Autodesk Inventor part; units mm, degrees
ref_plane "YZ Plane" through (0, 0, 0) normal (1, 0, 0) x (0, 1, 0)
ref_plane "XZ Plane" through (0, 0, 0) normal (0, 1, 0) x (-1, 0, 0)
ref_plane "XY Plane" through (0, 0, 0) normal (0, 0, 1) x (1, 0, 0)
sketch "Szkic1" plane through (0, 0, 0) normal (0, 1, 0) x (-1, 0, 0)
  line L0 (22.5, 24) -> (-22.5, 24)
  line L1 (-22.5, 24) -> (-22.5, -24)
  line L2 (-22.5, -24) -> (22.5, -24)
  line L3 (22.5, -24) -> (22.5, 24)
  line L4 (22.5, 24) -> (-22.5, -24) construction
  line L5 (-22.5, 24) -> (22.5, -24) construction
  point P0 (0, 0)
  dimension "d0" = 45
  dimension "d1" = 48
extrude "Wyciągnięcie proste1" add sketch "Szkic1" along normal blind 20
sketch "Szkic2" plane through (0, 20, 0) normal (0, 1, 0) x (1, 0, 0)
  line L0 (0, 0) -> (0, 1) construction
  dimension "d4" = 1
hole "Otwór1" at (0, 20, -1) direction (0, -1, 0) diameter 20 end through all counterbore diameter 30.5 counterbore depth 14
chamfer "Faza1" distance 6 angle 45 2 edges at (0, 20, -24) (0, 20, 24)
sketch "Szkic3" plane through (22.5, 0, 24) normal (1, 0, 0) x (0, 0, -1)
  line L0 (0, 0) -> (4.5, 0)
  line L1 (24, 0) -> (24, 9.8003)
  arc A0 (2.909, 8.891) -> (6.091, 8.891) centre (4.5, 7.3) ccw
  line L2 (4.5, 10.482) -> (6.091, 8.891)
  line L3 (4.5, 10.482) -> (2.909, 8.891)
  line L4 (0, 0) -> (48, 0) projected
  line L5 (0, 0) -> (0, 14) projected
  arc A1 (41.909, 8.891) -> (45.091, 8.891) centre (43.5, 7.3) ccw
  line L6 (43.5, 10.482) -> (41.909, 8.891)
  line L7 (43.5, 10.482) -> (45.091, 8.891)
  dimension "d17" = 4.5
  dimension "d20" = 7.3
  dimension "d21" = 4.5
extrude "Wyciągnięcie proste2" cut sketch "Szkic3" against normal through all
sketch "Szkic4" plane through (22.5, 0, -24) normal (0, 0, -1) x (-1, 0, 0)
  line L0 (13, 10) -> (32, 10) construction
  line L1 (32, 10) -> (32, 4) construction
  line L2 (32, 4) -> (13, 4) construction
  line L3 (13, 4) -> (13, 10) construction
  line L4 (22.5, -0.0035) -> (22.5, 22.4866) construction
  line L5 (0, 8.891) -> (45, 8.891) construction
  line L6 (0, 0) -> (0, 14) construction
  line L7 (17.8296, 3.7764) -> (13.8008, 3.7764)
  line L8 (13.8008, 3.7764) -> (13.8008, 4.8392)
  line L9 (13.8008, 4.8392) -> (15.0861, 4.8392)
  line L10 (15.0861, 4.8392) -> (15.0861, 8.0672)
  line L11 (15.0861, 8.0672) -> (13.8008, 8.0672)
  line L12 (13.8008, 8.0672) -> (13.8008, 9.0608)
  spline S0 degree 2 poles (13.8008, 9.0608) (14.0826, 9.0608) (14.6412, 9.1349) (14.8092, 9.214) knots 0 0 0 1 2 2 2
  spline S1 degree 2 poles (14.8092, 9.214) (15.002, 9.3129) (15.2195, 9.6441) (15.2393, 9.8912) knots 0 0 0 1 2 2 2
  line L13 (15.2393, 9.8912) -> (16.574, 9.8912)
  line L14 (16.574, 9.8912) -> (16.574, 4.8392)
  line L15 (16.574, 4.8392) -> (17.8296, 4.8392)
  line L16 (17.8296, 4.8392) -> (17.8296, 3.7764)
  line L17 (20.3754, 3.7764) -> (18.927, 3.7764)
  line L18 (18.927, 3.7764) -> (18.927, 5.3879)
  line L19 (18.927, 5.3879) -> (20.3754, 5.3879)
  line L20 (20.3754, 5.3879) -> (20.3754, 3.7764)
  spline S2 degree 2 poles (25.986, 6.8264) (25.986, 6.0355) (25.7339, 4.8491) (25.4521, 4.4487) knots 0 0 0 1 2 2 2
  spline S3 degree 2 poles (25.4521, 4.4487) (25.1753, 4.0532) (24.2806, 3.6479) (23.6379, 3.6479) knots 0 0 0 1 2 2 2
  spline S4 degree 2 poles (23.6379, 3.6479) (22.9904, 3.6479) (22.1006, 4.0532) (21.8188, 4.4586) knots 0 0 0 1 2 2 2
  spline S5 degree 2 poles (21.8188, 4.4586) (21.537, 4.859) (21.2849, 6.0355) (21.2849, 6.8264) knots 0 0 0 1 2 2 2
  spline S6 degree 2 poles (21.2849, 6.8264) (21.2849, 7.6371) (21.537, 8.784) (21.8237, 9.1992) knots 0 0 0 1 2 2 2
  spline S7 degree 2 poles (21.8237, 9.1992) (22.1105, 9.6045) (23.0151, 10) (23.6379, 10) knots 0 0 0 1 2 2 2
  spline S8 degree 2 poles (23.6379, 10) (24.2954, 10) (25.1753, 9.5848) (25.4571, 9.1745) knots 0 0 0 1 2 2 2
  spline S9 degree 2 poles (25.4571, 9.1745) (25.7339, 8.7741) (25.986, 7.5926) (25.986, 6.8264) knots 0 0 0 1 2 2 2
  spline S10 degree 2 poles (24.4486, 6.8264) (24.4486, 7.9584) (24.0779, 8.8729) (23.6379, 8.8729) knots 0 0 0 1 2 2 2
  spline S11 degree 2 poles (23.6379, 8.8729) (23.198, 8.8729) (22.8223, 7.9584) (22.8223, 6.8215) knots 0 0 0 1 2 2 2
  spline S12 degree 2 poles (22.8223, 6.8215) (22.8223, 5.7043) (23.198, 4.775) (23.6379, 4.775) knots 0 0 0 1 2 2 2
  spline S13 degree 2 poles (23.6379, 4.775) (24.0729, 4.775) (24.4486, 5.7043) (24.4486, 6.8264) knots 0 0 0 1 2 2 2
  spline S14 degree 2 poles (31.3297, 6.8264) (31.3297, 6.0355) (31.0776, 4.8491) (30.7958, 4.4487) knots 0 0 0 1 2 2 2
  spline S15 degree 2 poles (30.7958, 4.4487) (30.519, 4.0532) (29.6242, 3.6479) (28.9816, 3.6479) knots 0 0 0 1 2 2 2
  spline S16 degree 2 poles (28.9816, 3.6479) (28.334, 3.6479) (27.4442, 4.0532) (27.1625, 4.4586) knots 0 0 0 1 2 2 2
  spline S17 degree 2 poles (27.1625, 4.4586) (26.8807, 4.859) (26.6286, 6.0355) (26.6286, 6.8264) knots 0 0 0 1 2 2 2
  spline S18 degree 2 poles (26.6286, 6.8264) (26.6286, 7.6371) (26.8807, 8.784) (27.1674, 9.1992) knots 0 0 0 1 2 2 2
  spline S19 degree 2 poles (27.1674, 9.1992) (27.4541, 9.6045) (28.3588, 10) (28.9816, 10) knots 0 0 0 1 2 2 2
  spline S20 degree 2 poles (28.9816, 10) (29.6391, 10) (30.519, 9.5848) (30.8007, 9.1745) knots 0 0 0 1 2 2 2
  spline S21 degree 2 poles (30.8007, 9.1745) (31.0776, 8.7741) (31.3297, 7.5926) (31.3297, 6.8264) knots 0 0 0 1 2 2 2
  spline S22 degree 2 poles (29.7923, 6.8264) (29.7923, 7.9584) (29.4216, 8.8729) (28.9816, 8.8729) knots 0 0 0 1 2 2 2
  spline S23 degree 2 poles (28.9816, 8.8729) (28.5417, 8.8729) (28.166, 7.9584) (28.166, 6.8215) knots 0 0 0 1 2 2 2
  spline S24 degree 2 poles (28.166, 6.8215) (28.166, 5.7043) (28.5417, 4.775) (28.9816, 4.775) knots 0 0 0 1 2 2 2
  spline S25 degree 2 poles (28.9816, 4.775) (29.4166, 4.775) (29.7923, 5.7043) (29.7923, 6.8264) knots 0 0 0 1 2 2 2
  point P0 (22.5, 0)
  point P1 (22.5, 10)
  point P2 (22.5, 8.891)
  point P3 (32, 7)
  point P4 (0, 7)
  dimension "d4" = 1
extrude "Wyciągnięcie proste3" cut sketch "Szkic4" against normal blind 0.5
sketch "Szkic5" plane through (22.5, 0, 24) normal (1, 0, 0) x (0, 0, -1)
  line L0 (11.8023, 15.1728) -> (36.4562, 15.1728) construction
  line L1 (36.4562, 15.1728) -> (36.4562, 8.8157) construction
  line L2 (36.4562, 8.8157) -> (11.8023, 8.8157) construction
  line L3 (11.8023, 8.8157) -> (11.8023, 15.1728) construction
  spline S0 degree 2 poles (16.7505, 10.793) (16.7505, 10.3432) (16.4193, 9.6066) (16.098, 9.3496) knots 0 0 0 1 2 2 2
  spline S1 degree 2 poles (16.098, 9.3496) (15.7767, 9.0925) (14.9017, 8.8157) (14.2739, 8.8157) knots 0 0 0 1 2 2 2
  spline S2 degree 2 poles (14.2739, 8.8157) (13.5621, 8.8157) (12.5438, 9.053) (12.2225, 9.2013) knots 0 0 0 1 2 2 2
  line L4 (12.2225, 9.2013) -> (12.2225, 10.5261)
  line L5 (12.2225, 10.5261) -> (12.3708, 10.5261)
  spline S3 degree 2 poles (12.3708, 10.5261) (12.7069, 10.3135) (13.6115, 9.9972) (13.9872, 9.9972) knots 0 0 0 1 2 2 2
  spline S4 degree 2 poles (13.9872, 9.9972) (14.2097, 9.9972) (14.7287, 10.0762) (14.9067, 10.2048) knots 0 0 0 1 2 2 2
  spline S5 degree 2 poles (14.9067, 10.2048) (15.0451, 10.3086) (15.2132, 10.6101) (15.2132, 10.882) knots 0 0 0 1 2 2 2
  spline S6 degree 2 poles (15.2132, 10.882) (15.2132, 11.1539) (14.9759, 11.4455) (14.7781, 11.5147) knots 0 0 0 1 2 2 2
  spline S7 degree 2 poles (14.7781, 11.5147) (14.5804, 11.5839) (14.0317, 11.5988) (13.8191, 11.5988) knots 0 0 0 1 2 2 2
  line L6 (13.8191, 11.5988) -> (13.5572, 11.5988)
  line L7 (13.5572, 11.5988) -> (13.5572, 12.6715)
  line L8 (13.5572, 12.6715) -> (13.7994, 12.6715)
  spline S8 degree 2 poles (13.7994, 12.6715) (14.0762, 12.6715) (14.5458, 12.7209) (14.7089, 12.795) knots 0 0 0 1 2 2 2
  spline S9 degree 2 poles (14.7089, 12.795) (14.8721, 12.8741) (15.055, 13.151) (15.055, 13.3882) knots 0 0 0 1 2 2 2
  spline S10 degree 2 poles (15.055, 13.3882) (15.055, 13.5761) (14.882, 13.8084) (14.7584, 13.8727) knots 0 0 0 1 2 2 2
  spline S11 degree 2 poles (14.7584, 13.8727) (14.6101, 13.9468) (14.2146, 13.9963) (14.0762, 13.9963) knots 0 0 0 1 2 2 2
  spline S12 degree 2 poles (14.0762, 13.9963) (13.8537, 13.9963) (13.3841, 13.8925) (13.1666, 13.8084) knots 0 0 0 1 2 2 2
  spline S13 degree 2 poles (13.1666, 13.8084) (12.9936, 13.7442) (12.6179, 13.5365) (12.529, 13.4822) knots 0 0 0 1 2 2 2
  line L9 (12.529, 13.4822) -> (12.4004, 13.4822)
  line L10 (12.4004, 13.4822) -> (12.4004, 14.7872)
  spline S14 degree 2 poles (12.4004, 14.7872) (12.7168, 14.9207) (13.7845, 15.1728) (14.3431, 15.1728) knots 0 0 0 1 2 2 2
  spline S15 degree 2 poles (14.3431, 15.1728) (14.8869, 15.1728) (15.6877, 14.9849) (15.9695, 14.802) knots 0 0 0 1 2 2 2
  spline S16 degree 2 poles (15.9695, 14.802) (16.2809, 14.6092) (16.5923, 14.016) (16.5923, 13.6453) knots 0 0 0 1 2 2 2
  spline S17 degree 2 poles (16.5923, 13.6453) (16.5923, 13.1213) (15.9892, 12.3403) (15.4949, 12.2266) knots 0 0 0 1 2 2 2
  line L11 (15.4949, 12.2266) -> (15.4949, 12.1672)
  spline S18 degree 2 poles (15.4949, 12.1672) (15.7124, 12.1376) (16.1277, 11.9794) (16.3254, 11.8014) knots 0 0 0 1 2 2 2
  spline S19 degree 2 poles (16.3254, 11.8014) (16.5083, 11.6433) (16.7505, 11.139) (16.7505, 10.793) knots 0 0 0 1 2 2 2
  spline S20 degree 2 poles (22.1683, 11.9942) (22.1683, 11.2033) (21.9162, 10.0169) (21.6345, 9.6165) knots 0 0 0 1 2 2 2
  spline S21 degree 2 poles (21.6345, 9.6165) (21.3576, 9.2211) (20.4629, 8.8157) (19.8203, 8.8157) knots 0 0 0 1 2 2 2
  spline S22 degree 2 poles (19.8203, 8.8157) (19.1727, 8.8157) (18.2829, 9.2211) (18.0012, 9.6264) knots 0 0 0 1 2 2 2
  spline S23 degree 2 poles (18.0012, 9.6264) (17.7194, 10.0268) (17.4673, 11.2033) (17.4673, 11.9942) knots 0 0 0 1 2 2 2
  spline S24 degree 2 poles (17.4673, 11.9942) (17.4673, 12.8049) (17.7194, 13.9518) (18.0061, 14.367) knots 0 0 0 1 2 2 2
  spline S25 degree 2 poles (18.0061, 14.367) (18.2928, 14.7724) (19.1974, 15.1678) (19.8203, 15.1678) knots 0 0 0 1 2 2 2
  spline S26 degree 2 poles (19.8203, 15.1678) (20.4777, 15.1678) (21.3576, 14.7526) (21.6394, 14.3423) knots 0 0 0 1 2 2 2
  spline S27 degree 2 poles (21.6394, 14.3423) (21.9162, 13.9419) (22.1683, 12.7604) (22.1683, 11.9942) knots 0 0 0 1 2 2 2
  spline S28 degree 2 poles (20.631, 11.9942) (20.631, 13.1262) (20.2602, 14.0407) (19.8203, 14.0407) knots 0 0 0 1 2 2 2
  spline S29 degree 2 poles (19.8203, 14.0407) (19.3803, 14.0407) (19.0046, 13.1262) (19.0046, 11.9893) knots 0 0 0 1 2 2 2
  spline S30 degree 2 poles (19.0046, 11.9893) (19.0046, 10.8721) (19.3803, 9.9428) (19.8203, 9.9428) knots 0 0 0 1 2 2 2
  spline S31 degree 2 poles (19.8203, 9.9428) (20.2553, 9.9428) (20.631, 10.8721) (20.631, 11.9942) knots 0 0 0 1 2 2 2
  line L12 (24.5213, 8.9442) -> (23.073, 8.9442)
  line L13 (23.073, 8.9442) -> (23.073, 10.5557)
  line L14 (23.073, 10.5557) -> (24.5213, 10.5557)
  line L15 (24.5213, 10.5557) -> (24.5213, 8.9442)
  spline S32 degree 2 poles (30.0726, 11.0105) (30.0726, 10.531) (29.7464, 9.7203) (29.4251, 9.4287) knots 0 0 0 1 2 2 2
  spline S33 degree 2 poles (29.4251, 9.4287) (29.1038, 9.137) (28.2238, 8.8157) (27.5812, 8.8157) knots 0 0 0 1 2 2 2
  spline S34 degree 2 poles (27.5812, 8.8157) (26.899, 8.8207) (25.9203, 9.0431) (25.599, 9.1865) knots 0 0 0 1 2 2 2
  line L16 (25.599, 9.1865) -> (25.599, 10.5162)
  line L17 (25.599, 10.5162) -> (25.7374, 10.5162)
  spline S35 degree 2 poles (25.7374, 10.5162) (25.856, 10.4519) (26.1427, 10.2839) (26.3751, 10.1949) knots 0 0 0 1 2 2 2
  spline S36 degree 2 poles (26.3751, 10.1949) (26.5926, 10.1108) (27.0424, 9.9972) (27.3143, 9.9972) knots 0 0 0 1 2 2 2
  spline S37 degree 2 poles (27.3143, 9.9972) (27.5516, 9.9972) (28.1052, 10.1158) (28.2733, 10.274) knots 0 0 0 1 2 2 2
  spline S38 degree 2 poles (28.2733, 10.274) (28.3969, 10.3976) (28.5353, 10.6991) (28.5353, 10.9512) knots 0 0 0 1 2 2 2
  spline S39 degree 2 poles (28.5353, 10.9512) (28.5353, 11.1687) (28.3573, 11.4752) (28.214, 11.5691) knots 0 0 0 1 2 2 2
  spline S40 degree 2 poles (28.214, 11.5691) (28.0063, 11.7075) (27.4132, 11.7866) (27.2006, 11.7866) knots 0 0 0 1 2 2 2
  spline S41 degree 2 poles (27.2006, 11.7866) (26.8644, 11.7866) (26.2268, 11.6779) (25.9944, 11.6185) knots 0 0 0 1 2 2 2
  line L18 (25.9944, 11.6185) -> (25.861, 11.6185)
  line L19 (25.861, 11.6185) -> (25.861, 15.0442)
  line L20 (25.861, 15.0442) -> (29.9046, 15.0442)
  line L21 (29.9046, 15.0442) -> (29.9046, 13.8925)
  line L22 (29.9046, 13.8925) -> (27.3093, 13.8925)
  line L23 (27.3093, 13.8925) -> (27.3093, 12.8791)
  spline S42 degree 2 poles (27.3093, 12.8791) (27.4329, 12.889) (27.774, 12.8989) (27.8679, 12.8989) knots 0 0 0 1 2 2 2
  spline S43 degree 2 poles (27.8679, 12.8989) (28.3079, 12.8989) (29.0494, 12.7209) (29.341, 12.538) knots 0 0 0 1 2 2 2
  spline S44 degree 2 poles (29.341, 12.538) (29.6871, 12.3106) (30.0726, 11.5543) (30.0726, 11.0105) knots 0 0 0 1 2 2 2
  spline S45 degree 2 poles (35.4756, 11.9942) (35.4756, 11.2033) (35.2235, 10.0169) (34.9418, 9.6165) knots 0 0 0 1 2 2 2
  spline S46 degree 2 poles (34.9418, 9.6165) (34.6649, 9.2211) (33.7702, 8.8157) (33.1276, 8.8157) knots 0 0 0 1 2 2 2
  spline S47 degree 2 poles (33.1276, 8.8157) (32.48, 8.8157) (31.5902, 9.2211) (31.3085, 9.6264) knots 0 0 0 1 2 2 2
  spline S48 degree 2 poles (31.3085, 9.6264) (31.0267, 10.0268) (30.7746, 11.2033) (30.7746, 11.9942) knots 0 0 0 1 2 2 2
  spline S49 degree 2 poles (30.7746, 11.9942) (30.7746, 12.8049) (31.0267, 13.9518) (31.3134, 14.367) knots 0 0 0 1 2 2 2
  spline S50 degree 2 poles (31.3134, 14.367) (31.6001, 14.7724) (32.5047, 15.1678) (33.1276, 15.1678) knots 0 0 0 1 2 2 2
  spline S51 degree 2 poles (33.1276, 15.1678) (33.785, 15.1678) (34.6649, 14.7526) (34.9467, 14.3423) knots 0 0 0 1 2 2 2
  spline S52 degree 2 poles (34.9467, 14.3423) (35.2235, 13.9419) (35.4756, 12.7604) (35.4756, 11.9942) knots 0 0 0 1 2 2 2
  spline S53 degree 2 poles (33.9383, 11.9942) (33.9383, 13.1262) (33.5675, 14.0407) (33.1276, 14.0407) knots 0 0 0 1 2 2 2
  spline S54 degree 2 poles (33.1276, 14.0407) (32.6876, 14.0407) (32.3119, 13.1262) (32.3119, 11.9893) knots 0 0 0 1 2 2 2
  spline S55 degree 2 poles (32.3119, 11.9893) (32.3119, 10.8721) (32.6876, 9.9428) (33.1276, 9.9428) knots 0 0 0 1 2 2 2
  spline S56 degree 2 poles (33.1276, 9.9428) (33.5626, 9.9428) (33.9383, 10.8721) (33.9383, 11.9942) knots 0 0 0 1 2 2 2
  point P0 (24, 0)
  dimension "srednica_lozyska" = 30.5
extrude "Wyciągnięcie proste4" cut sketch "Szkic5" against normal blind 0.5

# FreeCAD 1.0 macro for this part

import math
import FreeCAD as App
import Part
import Sketcher

V = App.Vector


def edges_at(feature, points):
    """Names of the edges that pass closest to the given points."""
    edges = feature.Shape.Edges
    near = lambda p: min(range(len(edges)), key=lambda i: edges[i].distToShape(Part.Vertex(*p))[0])
    return sorted({f"Edge{near(p) + 1}" for p in points})


def add_polygon(sketch, points):
    """Adds a closed chain of lines whose ends are joined by coincident constraints."""
    first, n = sketch.GeometryCount, len(points)
    for a, b in zip(points, points[1:] + points[:1]):
        sketch.addGeometry(Part.LineSegment(App.Vector(*a, 0), App.Vector(*b, 0)), False)
    for i in range(n):
        sketch.addConstraint(Sketcher.Constraint("Coincident", first + i, 2, first + (i + 1) % n, 1))

doc = App.newDocument("Part")
params = doc.addObject("Spreadsheet::Sheet", "Params")
for row, (alias, value) in enumerate([
    ("sketch1_width", "45 mm"),
    ("sketch1_height", "48 mm"),
    ("pad1_length", "20 mm"),
    ("sketch2_diameter", "20 mm"),
    ("hole_diameter", "20 mm"),
    ("hole_cbore_diameter", "30.5 mm"),
    ("hole_cbore_depth", "14 mm"),
    ("chamfer_size", "6 mm"),
    ("sketch3_radius", "2.25 mm"),
    ("pocket2_length", "0.5 mm"),
    ("pocket3_length", "0.5 mm"),
], start=1):
    params.set(f"A{row}", alias)
    params.set(f"B{row}", "=" + value)
    params.setAlias(f"B{row}", alias)

body = doc.addObject("PartDesign::Body", "Body")

sketch1 = body.newObject("Sketcher::SketchObject", "Sketch")
sketch1.AttachmentSupport = (doc.getObject("XZ_Plane"), [""])
sketch1.MapMode = "FlatFace"
add_polygon(sketch1, [(-22, -24), (-22, 24), (22, 24), (22, -24)])
sketch1.addConstraint([
    Sketcher.Constraint("Vertical", 0),
    Sketcher.Constraint("Horizontal", 1),
    Sketcher.Constraint("Vertical", 2),
    Sketcher.Constraint("Horizontal", 3),
    Sketcher.Constraint("Symmetric", 0, 2, 2, 2, -1, 1),
    Sketcher.Constraint("DistanceX", 1, 1, 1, 2, 45.0),
    Sketcher.Constraint("DistanceY", 0, 1, 0, 2, 48.0),
])
sketch1.setExpression("Constraints[9]", "Params.sketch1_width")
sketch1.setExpression("Constraints[10]", "Params.sketch1_height")
pad1 = body.newObject("PartDesign::Pad", "Pad")
pad1.Profile = sketch1
pad1.setExpression("Length", "Params.pad1_length")
pad1.Reversed = True

sketch2 = body.newObject("Sketcher::SketchObject", "Sketch001")
sketch2.AttachmentSupport = (doc.getObject("XZ_Plane"), [""])
sketch2.MapMode = "FlatFace"
sketch2.AttachmentOffset = App.Placement(V(0, 0, -20), App.Rotation())
sketch2.addGeometry(Part.Circle(V(0, -1, 0), V(0, 0, 1), 10), False)
sketch2.addConstraint([
    Sketcher.Constraint("PointOnObject", 0, 3, -2),
    Sketcher.Constraint("Diameter", 0, 20.0),
    Sketcher.Constraint("DistanceY", 0, 3, -1, 1, 1.0),
])
sketch2.setExpression("Constraints[1]", "Params.sketch2_diameter")
doc.recompute()
hole = body.newObject("PartDesign::Hole", "Hole")
hole.Profile = sketch2
hole.ThreadType = "None"
hole.setExpression("Diameter", "Params.hole_diameter")
hole.DepthType = "ThroughAll"
hole.HoleCutType = "Counterbore"
hole.setExpression("HoleCutDiameter", "Params.hole_cbore_diameter")
hole.setExpression("HoleCutDepth", "Params.hole_cbore_depth")
hole.Reversed = True
doc.recompute()

chamfer = body.newObject("PartDesign::Chamfer", "Chamfer")
chamfer.Base = (hole, edges_at(hole, [(0, 20, -24), (0, 20, 24)]))
chamfer.setExpression("Size", "Params.chamfer_size")

sketch3 = body.newObject("Sketcher::SketchObject", "Sketch002")
sketch3.AttachmentSupport = (doc.getObject("YZ_Plane"), [""])
sketch3.MapMode = "FlatFace"
sketch3.AttachmentOffset = App.Placement(V(0, 0, 22.5), App.Rotation())
sketch3.addGeometry([
    Part.LineSegment(V(10.5, 19.5, 0), V(8.9, 21.1, 0)),
    Part.ArcOfCircle(Part.Circle(V(7.3, 19.5, 0), V(0, 0, 1), 2.3), math.radians(45), math.radians(315)),
    Part.LineSegment(V(8.9, 17.9, 0), V(10.5, 19.5, 0)),
    Part.LineSegment(V(10.5, -19.5, 0), V(8.9, -17.9, 0)),
    Part.ArcOfCircle(Part.Circle(V(7.3, -19.5, 0), V(0, 0, 1), 2.3), math.radians(45), math.radians(315)),
    Part.LineSegment(V(8.9, -21.1, 0), V(10.5, -19.5, 0)),
], False)
sketch3.addConstraint([
    Sketcher.Constraint("Tangent", 0, 2, 1, 1),
    Sketcher.Constraint("Tangent", 1, 2, 2, 1),
    Sketcher.Constraint("Coincident", 2, 2, 0, 1),
    Sketcher.Constraint("Tangent", 3, 2, 4, 1),
    Sketcher.Constraint("Tangent", 4, 2, 5, 1),
    Sketcher.Constraint("Coincident", 5, 2, 3, 1),
    Sketcher.Constraint("Equal", 1, 4),
    Sketcher.Constraint("Symmetric", 1, 3, 4, 3, -1),
    Sketcher.Constraint("Symmetric", 2, 2, 5, 2, -1),
    Sketcher.Constraint("Perpendicular", 0, 2),
    Sketcher.Constraint("Perpendicular", 2, 3),
    Sketcher.Constraint("Radius", 1, 2.25),
    Sketcher.Constraint("DistanceX", -1, 1, 1, 3, 7.3),
    Sketcher.Constraint("DistanceY", 4, 3, 1, 3, 39.0),
])
sketch3.setExpression("Constraints[11]", "Params.sketch3_radius")
pocket1 = body.newObject("PartDesign::Pocket", "Pocket")
pocket1.Profile = sketch3
pocket1.Type = "ThroughAll"

sketch4 = body.newObject("Sketcher::SketchObject", "Sketch003")
sketch4.AttachmentSupport = (doc.getObject("XY_Plane"), [""])
sketch4.MapMode = "FlatFace"
sketch4.AttachmentOffset = App.Placement(V(0, 0, -24), App.Rotation())
sketch4.addGeometry(Part.LineSegment(V(8.6992, 3.7764, 0), V(4.6704, 3.7764, 0)), False)
sketch4.addGeometry(Part.LineSegment(V(4.6704, 3.7764, 0), V(4.6704, 4.8392, 0)), False)
sketch4.addGeometry(Part.LineSegment(V(4.6704, 4.8392, 0), V(5.926, 4.8392, 0)), False)
sketch4.addGeometry(Part.LineSegment(V(5.926, 4.8392, 0), V(5.926, 9.8912, 0)), False)
sketch4.addGeometry(Part.LineSegment(V(5.926, 9.8912, 0), V(7.2607, 9.8912, 0)), False)
sketch4.addGeometry(Part.BSplineCurve([V(7.6908, 9.214, 0), V(7.498, 9.3129, 0), V(7.2805, 9.6441, 0), V(7.2607, 9.8912, 0)], [3, 1, 3], [0, 1, 2], False, 2, [1, 1, 1, 1], False), False)
sketch4.addGeometry(Part.BSplineCurve([V(8.6992, 9.0608, 0), V(8.4174, 9.0608, 0), V(7.8588, 9.1349, 0), V(7.6908, 9.214, 0)], [3, 1, 3], [0, 1, 2], False, 2, [1, 1, 1, 1], False), False)
sketch4.addGeometry(Part.LineSegment(V(8.6992, 9.0608, 0), V(8.6992, 8.0672, 0)), False)
sketch4.addGeometry(Part.LineSegment(V(8.6992, 8.0672, 0), V(7.4139, 8.0672, 0)), False)
sketch4.addGeometry(Part.LineSegment(V(7.4139, 8.0672, 0), V(7.4139, 4.8392, 0)), False)
sketch4.addGeometry(Part.LineSegment(V(7.4139, 4.8392, 0), V(8.6992, 4.8392, 0)), False)
sketch4.addGeometry(Part.LineSegment(V(8.6992, 4.8392, 0), V(8.6992, 3.7764, 0)), False)
add_polygon(sketch4, [(3.573, 3.7764), (2.1246, 3.7764), (2.1246, 5.3879), (3.573, 5.3879)])
sketch4.addGeometry(Part.BSplineCurve([V(-3.486, 6.8264, 0), V(-3.486, 6.0355, 0), V(-3.2339, 4.8491, 0), V(-2.9521, 4.4487, 0)], [3, 1, 3], [0, 1, 2], False, 2, [1, 1, 1, 1], False), False)
sketch4.addGeometry(Part.BSplineCurve([V(-2.9571, 9.1745, 0), V(-3.2339, 8.7741, 0), V(-3.486, 7.5926, 0), V(-3.486, 6.8264, 0)], [3, 1, 3], [0, 1, 2], False, 2, [1, 1, 1, 1], False), False)
sketch4.addGeometry(Part.BSplineCurve([V(-1.1379, 10, 0), V(-1.7954, 10, 0), V(-2.6753, 9.5848, 0), V(-2.9571, 9.1745, 0)], [3, 1, 3], [0, 1, 2], False, 2, [1, 1, 1, 1], False), False)
sketch4.addGeometry(Part.BSplineCurve([V(0.6763, 9.1992, 0), V(0.3895, 9.6045, 0), V(-0.5151, 10, 0), V(-1.1379, 10, 0)], [3, 1, 3], [0, 1, 2], False, 2, [1, 1, 1, 1], False), False)
sketch4.addGeometry(Part.BSplineCurve([V(1.2151, 6.8264, 0), V(1.2151, 7.6371, 0), V(0.963, 8.784, 0), V(0.6763, 9.1992, 0)], [3, 1, 3], [0, 1, 2], False, 2, [1, 1, 1, 1], False), False)
sketch4.addGeometry(Part.BSplineCurve([V(0.6812, 4.4586, 0), V(0.963, 4.859, 0), V(1.2151, 6.0355, 0), V(1.2151, 6.8264, 0)], [3, 1, 3], [0, 1, 2], False, 2, [1, 1, 1, 1], False), False)
sketch4.addGeometry(Part.BSplineCurve([V(-1.1379, 3.6479, 0), V(-0.4904, 3.6479, 0), V(0.3994, 4.0532, 0), V(0.6812, 4.4586, 0)], [3, 1, 3], [0, 1, 2], False, 2, [1, 1, 1, 1], False), False)
sketch4.addGeometry(Part.BSplineCurve([V(-2.9521, 4.4487, 0), V(-2.6753, 4.0532, 0), V(-1.7806, 3.6479, 0), V(-1.1379, 3.6479, 0)], [3, 1, 3], [0, 1, 2], False, 2, [1, 1, 1, 1], False), False)
sketch4.addGeometry(Part.BSplineCurve([V(-1.9486, 6.8264, 0), V(-1.9486, 7.9584, 0), V(-1.5779, 8.8729, 0), V(-1.1379, 8.8729, 0)], [3, 1, 3], [0, 1, 2], False, 2, [1, 1, 1, 1], False), False)
sketch4.addGeometry(Part.BSplineCurve([V(-1.1379, 4.775, 0), V(-1.5729, 4.775, 0), V(-1.9486, 5.7043, 0), V(-1.9486, 6.8264, 0)], [3, 1, 3], [0, 1, 2], False, 2, [1, 1, 1, 1], False), False)
sketch4.addGeometry(Part.BSplineCurve([V(-0.3223, 6.8215, 0), V(-0.3223, 5.7043, 0), V(-0.698, 4.775, 0), V(-1.1379, 4.775, 0)], [3, 1, 3], [0, 1, 2], False, 2, [1, 1, 1, 1], False), False)
sketch4.addGeometry(Part.BSplineCurve([V(-1.1379, 8.8729, 0), V(-0.698, 8.8729, 0), V(-0.3223, 7.9584, 0), V(-0.3223, 6.8215, 0)], [3, 1, 3], [0, 1, 2], False, 2, [1, 1, 1, 1], False), False)
sketch4.addGeometry(Part.BSplineCurve([V(-8.8297, 6.8264, 0), V(-8.8297, 6.0355, 0), V(-8.5776, 4.8491, 0), V(-8.2958, 4.4487, 0)], [3, 1, 3], [0, 1, 2], False, 2, [1, 1, 1, 1], False), False)
sketch4.addGeometry(Part.BSplineCurve([V(-8.3007, 9.1745, 0), V(-8.5776, 8.7741, 0), V(-8.8297, 7.5926, 0), V(-8.8297, 6.8264, 0)], [3, 1, 3], [0, 1, 2], False, 2, [1, 1, 1, 1], False), False)
sketch4.addGeometry(Part.BSplineCurve([V(-6.4816, 10, 0), V(-7.1391, 10, 0), V(-8.019, 9.5848, 0), V(-8.3007, 9.1745, 0)], [3, 1, 3], [0, 1, 2], False, 2, [1, 1, 1, 1], False), False)
sketch4.addGeometry(Part.BSplineCurve([V(-4.6674, 9.1992, 0), V(-4.9541, 9.6045, 0), V(-5.8588, 10, 0), V(-6.4816, 10, 0)], [3, 1, 3], [0, 1, 2], False, 2, [1, 1, 1, 1], False), False)
sketch4.addGeometry(Part.BSplineCurve([V(-4.1286, 6.8264, 0), V(-4.1286, 7.6371, 0), V(-4.3807, 8.784, 0), V(-4.6674, 9.1992, 0)], [3, 1, 3], [0, 1, 2], False, 2, [1, 1, 1, 1], False), False)
sketch4.addGeometry(Part.BSplineCurve([V(-4.6625, 4.4586, 0), V(-4.3807, 4.859, 0), V(-4.1286, 6.0355, 0), V(-4.1286, 6.8264, 0)], [3, 1, 3], [0, 1, 2], False, 2, [1, 1, 1, 1], False), False)
sketch4.addGeometry(Part.BSplineCurve([V(-6.4816, 3.6479, 0), V(-5.834, 3.6479, 0), V(-4.9442, 4.0532, 0), V(-4.6625, 4.4586, 0)], [3, 1, 3], [0, 1, 2], False, 2, [1, 1, 1, 1], False), False)
sketch4.addGeometry(Part.BSplineCurve([V(-8.2958, 4.4487, 0), V(-8.019, 4.0532, 0), V(-7.1242, 3.6479, 0), V(-6.4816, 3.6479, 0)], [3, 1, 3], [0, 1, 2], False, 2, [1, 1, 1, 1], False), False)
sketch4.addGeometry(Part.BSplineCurve([V(-7.2923, 6.8264, 0), V(-7.2923, 7.9584, 0), V(-6.9216, 8.8729, 0), V(-6.4816, 8.8729, 0)], [3, 1, 3], [0, 1, 2], False, 2, [1, 1, 1, 1], False), False)
sketch4.addGeometry(Part.BSplineCurve([V(-6.4816, 4.775, 0), V(-6.9166, 4.775, 0), V(-7.2923, 5.7043, 0), V(-7.2923, 6.8264, 0)], [3, 1, 3], [0, 1, 2], False, 2, [1, 1, 1, 1], False), False)
sketch4.addGeometry(Part.BSplineCurve([V(-5.666, 6.8215, 0), V(-5.666, 5.7043, 0), V(-6.0417, 4.775, 0), V(-6.4816, 4.775, 0)], [3, 1, 3], [0, 1, 2], False, 2, [1, 1, 1, 1], False), False)
sketch4.addGeometry(Part.BSplineCurve([V(-6.4816, 8.8729, 0), V(-6.0417, 8.8729, 0), V(-5.666, 7.9584, 0), V(-5.666, 6.8215, 0)], [3, 1, 3], [0, 1, 2], False, 2, [1, 1, 1, 1], False), False)
sketch4.addConstraint([
    Sketcher.Constraint("Block", 5),
    Sketcher.Constraint("Block", 6),
    Sketcher.Constraint("Block", 16),
    Sketcher.Constraint("Block", 17),
    Sketcher.Constraint("Block", 18),
    Sketcher.Constraint("Block", 19),
    Sketcher.Constraint("Block", 20),
    Sketcher.Constraint("Block", 21),
    Sketcher.Constraint("Block", 22),
    Sketcher.Constraint("Block", 23),
    Sketcher.Constraint("Block", 24),
    Sketcher.Constraint("Block", 25),
    Sketcher.Constraint("Block", 26),
    Sketcher.Constraint("Block", 27),
    Sketcher.Constraint("Block", 28),
    Sketcher.Constraint("Block", 29),
    Sketcher.Constraint("Block", 30),
    Sketcher.Constraint("Block", 31),
    Sketcher.Constraint("Block", 32),
    Sketcher.Constraint("Block", 33),
    Sketcher.Constraint("Block", 34),
    Sketcher.Constraint("Block", 35),
    Sketcher.Constraint("Block", 36),
    Sketcher.Constraint("Block", 37),
    Sketcher.Constraint("Block", 38),
    Sketcher.Constraint("Block", 39),
    Sketcher.Constraint("Coincident", 0, 2, 1, 1),
    Sketcher.Constraint("Coincident", 1, 2, 2, 1),
    Sketcher.Constraint("Coincident", 2, 2, 3, 1),
    Sketcher.Constraint("Coincident", 3, 2, 4, 1),
    Sketcher.Constraint("Coincident", 4, 2, 5, 2),
    Sketcher.Constraint("Coincident", 6, 1, 7, 1),
    Sketcher.Constraint("Coincident", 7, 2, 8, 1),
    Sketcher.Constraint("Coincident", 8, 2, 9, 1),
    Sketcher.Constraint("Coincident", 9, 2, 10, 1),
    Sketcher.Constraint("Coincident", 10, 2, 11, 1),
    Sketcher.Constraint("Coincident", 11, 2, 0, 1),
    Sketcher.Constraint("Horizontal", 0),
    Sketcher.Constraint("Vertical", 1),
    Sketcher.Constraint("Horizontal", 2),
    Sketcher.Constraint("Vertical", 3),
    Sketcher.Constraint("Horizontal", 4),
    Sketcher.Constraint("Vertical", 7),
    Sketcher.Constraint("Horizontal", 8),
    Sketcher.Constraint("Vertical", 9),
    Sketcher.Constraint("Horizontal", 10),
    Sketcher.Constraint("Vertical", 11),
    Sketcher.Constraint("Horizontal", 12),
    Sketcher.Constraint("Vertical", 13),
    Sketcher.Constraint("Horizontal", 14),
    Sketcher.Constraint("Vertical", 15),
    Sketcher.Constraint("Horizontal", 2, 2, 9, 2),
    Sketcher.Constraint("Horizontal", 11, 2, 12, 2),
    Sketcher.Constraint("Vertical", 7, 2, 10, 2),
    Sketcher.Constraint("DistanceY", 3, 1, 3, 2, 5.052),
    Sketcher.Constraint("DistanceY", 9, 2, 9, 1, 3.228),
    Sketcher.Constraint("DistanceX", 0, 2, 0, 1, 4.0288),
    Sketcher.Constraint("DistanceX", 2, 1, 2, 2, 1.2556),
    Sketcher.Constraint("DistanceX", 8, 2, 8, 1, 1.2853),
    Sketcher.Constraint("DistanceX", 12, 2, 12, 1, 1.4484),
    Sketcher.Constraint("DistanceY", 1, 1, 1, 2, 1.0628),
    Sketcher.Constraint("DistanceY", 13, 1, 13, 2, 1.6115),
    Sketcher.Constraint("DistanceX", -1, 1, 14, 2, 3.573),
])
pocket2 = body.newObject("PartDesign::Pocket", "Pocket001")
pocket2.Profile = sketch4
pocket2.setExpression("Length", "Params.pocket2_length")
pocket2.Reversed = True

sketch5 = body.newObject("Sketcher::SketchObject", "Sketch004")
sketch5.AttachmentSupport = (doc.getObject("YZ_Plane"), [""])
sketch5.MapMode = "FlatFace"
sketch5.AttachmentOffset = App.Placement(V(0, 0, 22.5), App.Rotation())
sketch5.addGeometry(Part.BSplineCurve([V(10.793, 7.2495, 0), V(10.3432, 7.2495, 0), V(9.6066, 7.5807, 0), V(9.3496, 7.902, 0)], [3, 1, 3], [0, 1, 2], False, 2, [1, 1, 1, 1], False), False)
sketch5.addGeometry(Part.BSplineCurve([V(11.8014, 7.6746, 0), V(11.6433, 7.4917, 0), V(11.139, 7.2495, 0), V(10.793, 7.2495, 0)], [3, 1, 3], [0, 1, 2], False, 2, [1, 1, 1, 1], False), False)
sketch5.addGeometry(Part.BSplineCurve([V(12.1672, 8.5051, 0), V(12.1376, 8.2876, 0), V(11.9794, 7.8723, 0), V(11.8014, 7.6746, 0)], [3, 1, 3], [0, 1, 2], False, 2, [1, 1, 1, 1], False), False)
sketch5.addGeometry(Part.LineSegment(V(12.1672, 8.5051, 0), V(12.2266, 8.5051, 0)), False)
sketch5.addGeometry(Part.BSplineCurve([V(13.6453, 7.4077, 0), V(13.1213, 7.4077, 0), V(12.3403, 8.0108, 0), V(12.2266, 8.5051, 0)], [3, 1, 3], [0, 1, 2], False, 2, [1, 1, 1, 1], False), False)
sketch5.addGeometry(Part.BSplineCurve([V(14.802, 8.0305, 0), V(14.6092, 7.7191, 0), V(14.016, 7.4077, 0), V(13.6453, 7.4077, 0)], [3, 1, 3], [0, 1, 2], False, 2, [1, 1, 1, 1], False), False)
sketch5.addGeometry(Part.BSplineCurve([V(15.1728, 9.6569, 0), V(15.1728, 9.1131, 0), V(14.9849, 8.3123, 0), V(14.802, 8.0305, 0)], [3, 1, 3], [0, 1, 2], False, 2, [1, 1, 1, 1], False), False)
sketch5.addGeometry(Part.BSplineCurve([V(14.7872, 11.5996, 0), V(14.9207, 11.2832, 0), V(15.1728, 10.2155, 0), V(15.1728, 9.6569, 0)], [3, 1, 3], [0, 1, 2], False, 2, [1, 1, 1, 1], False), False)
sketch5.addGeometry(Part.LineSegment(V(14.7872, 11.5996, 0), V(13.4822, 11.5996, 0)), False)
sketch5.addGeometry(Part.LineSegment(V(13.4822, 11.5996, 0), V(13.4822, 11.471, 0)), False)
sketch5.addGeometry(Part.BSplineCurve([V(13.8084, 10.8334, 0), V(13.7442, 11.0064, 0), V(13.5365, 11.3821, 0), V(13.4822, 11.471, 0)], [3, 1, 3], [0, 1, 2], False, 2, [1, 1, 1, 1], False), False)
sketch5.addGeometry(Part.BSplineCurve([V(13.9963, 9.9238, 0), V(13.9963, 10.1463, 0), V(13.8925, 10.6159, 0), V(13.8084, 10.8334, 0)], [3, 1, 3], [0, 1, 2], False, 2, [1, 1, 1, 1], False), False)
sketch5.addGeometry(Part.BSplineCurve([V(13.8727, 9.2416, 0), V(13.9468, 9.3899, 0), V(13.9963, 9.7854, 0), V(13.9963, 9.9238, 0)], [3, 1, 3], [0, 1, 2], False, 2, [1, 1, 1, 1], False), False)
sketch5.addGeometry(Part.BSplineCurve([V(13.3882, 8.945, 0), V(13.5761, 8.945, 0), V(13.8084, 9.118, 0), V(13.8727, 9.2416, 0)], [3, 1, 3], [0, 1, 2], False, 2, [1, 1, 1, 1], False), False)
sketch5.addGeometry(Part.BSplineCurve([V(12.795, 9.2911, 0), V(12.8741, 9.1279, 0), V(13.151, 8.945, 0), V(13.3882, 8.945, 0)], [3, 1, 3], [0, 1, 2], False, 2, [1, 1, 1, 1], False), False)
sketch5.addGeometry(Part.BSplineCurve([V(12.6715, 10.2006, 0), V(12.6715, 9.9238, 0), V(12.7209, 9.4542, 0), V(12.795, 9.2911, 0)], [3, 1, 3], [0, 1, 2], False, 2, [1, 1, 1, 1], False), False)
sketch5.addGeometry(Part.LineSegment(V(12.6715, 10.2006, 0), V(12.6715, 10.4428, 0)), False)
sketch5.addGeometry(Part.LineSegment(V(12.6715, 10.4428, 0), V(11.5988, 10.4428, 0)), False)
sketch5.addGeometry(Part.LineSegment(V(11.5988, 10.4428, 0), V(11.5988, 10.1809, 0)), False)
sketch5.addGeometry(Part.BSplineCurve([V(11.5147, 9.2219, 0), V(11.5839, 9.4196, 0), V(11.5988, 9.9683, 0), V(11.5988, 10.1809, 0)], [3, 1, 3], [0, 1, 2], False, 2, [1, 1, 1, 1], False), False)
sketch5.addGeometry(Part.BSplineCurve([V(10.882, 8.7868, 0), V(11.1539, 8.7868, 0), V(11.4455, 9.0241, 0), V(11.5147, 9.2219, 0)], [3, 1, 3], [0, 1, 2], False, 2, [1, 1, 1, 1], False), False)
sketch5.addGeometry(Part.BSplineCurve([V(10.2048, 9.0933, 0), V(10.3086, 8.9549, 0), V(10.6101, 8.7868, 0), V(10.882, 8.7868, 0)], [3, 1, 3], [0, 1, 2], False, 2, [1, 1, 1, 1], False), False)
sketch5.addGeometry(Part.BSplineCurve([V(9.9972, 10.0128, 0), V(9.9972, 9.7903, 0), V(10.0762, 9.2713, 0), V(10.2048, 9.0933, 0)], [3, 1, 3], [0, 1, 2], False, 2, [1, 1, 1, 1], False), False)
sketch5.addGeometry(Part.BSplineCurve([V(10.5261, 11.6292, 0), V(10.3135, 11.2931, 0), V(9.9972, 10.3885, 0), V(9.9972, 10.0128, 0)], [3, 1, 3], [0, 1, 2], False, 2, [1, 1, 1, 1], False), False)
sketch5.addGeometry(Part.LineSegment(V(10.5261, 11.6292, 0), V(10.5261, 11.7775, 0)), False)
sketch5.addGeometry(Part.LineSegment(V(10.5261, 11.7775, 0), V(9.2013, 11.7775, 0)), False)
sketch5.addGeometry(Part.BSplineCurve([V(8.8157, 9.7261, 0), V(8.8157, 10.4379, 0), V(9.053, 11.4562, 0), V(9.2013, 11.7775, 0)], [3, 1, 3], [0, 1, 2], False, 2, [1, 1, 1, 1], False), False)
sketch5.addGeometry(Part.BSplineCurve([V(9.3496, 7.902, 0), V(9.0925, 8.2233, 0), V(8.8157, 9.0983, 0), V(8.8157, 9.7261, 0)], [3, 1, 3], [0, 1, 2], False, 2, [1, 1, 1, 1], False), False)
sketch5.addGeometry(Part.BSplineCurve([V(11.9942, 1.8317, 0), V(11.2033, 1.8317, 0), V(10.0169, 2.0838, 0), V(9.6165, 2.3655, 0)], [3, 1, 3], [0, 1, 2], False, 2, [1, 1, 1, 1], False), False)
sketch5.addGeometry(Part.BSplineCurve([V(14.3423, 2.3606, 0), V(13.9419, 2.0838, 0), V(12.7604, 1.8317, 0), V(11.9942, 1.8317, 0)], [3, 1, 3], [0, 1, 2], False, 2, [1, 1, 1, 1], False), False)
sketch5.addGeometry(Part.BSplineCurve([V(15.1678, 4.1797, 0), V(15.1678, 3.5223, 0), V(14.7526, 2.6424, 0), V(14.3423, 2.3606, 0)], [3, 1, 3], [0, 1, 2], False, 2, [1, 1, 1, 1], False), False)
sketch5.addGeometry(Part.BSplineCurve([V(14.367, 5.9939, 0), V(14.7724, 5.7072, 0), V(15.1678, 4.8026, 0), V(15.1678, 4.1797, 0)], [3, 1, 3], [0, 1, 2], False, 2, [1, 1, 1, 1], False), False)
sketch5.addGeometry(Part.BSplineCurve([V(11.9942, 6.5327, 0), V(12.8049, 6.5327, 0), V(13.9518, 6.2806, 0), V(14.367, 5.9939, 0)], [3, 1, 3], [0, 1, 2], False, 2, [1, 1, 1, 1], False), False)
sketch5.addGeometry(Part.BSplineCurve([V(9.6264, 5.9988, 0), V(10.0268, 6.2806, 0), V(11.2033, 6.5327, 0), V(11.9942, 6.5327, 0)], [3, 1, 3], [0, 1, 2], False, 2, [1, 1, 1, 1], False), False)
sketch5.addGeometry(Part.BSplineCurve([V(8.8157, 4.1797, 0), V(8.8157, 4.8273, 0), V(9.2211, 5.7171, 0), V(9.6264, 5.9988, 0)], [3, 1, 3], [0, 1, 2], False, 2, [1, 1, 1, 1], False), False)
sketch5.addGeometry(Part.BSplineCurve([V(9.6165, 2.3655, 0), V(9.2211, 2.6424, 0), V(8.8157, 3.5371, 0), V(8.8157, 4.1797, 0)], [3, 1, 3], [0, 1, 2], False, 2, [1, 1, 1, 1], False), False)
sketch5.addGeometry(Part.BSplineCurve([V(11.9942, 3.369, 0), V(13.1262, 3.369, 0), V(14.0407, 3.7398, 0), V(14.0407, 4.1797, 0)], [3, 1, 3], [0, 1, 2], False, 2, [1, 1, 1, 1], False), False)
sketch5.addGeometry(Part.BSplineCurve([V(9.9428, 4.1797, 0), V(9.9428, 3.7447, 0), V(10.8721, 3.369, 0), V(11.9942, 3.369, 0)], [3, 1, 3], [0, 1, 2], False, 2, [1, 1, 1, 1], False), False)
sketch5.addGeometry(Part.BSplineCurve([V(11.9893, 4.9954, 0), V(10.8721, 4.9954, 0), V(9.9428, 4.6197, 0), V(9.9428, 4.1797, 0)], [3, 1, 3], [0, 1, 2], False, 2, [1, 1, 1, 1], False), False)
sketch5.addGeometry(Part.BSplineCurve([V(14.0407, 4.1797, 0), V(14.0407, 4.6197, 0), V(13.1262, 4.9954, 0), V(11.9893, 4.9954, 0)], [3, 1, 3], [0, 1, 2], False, 2, [1, 1, 1, 1], False), False)
add_polygon(sketch5, [(8.9442, 0.927), (8.9442, -0.5213), (10.5557, -0.5213), (10.5557, 0.927)])
sketch5.addGeometry(Part.BSplineCurve([V(11.0105, -6.0726, 0), V(10.531, -6.0726, 0), V(9.7203, -5.7464, 0), V(9.4287, -5.4251, 0)], [3, 1, 3], [0, 1, 2], False, 2, [1, 1, 1, 1], False), False)
sketch5.addGeometry(Part.BSplineCurve([V(12.538, -5.341, 0), V(12.3106, -5.6871, 0), V(11.5543, -6.0726, 0), V(11.0105, -6.0726, 0)], [3, 1, 3], [0, 1, 2], False, 2, [1, 1, 1, 1], False), False)
sketch5.addGeometry(Part.BSplineCurve([V(12.8989, -3.8679, 0), V(12.8989, -4.3079, 0), V(12.7209, -5.0494, 0), V(12.538, -5.341, 0)], [3, 1, 3], [0, 1, 2], False, 2, [1, 1, 1, 1], False), False)
sketch5.addGeometry(Part.BSplineCurve([V(12.8791, -3.3093, 0), V(12.889, -3.4329, 0), V(12.8989, -3.774, 0), V(12.8989, -3.8679, 0)], [3, 1, 3], [0, 1, 2], False, 2, [1, 1, 1, 1], False), False)
sketch5.addGeometry(Part.LineSegment(V(12.8791, -3.3093, 0), V(13.8925, -3.3093, 0)), False)
sketch5.addGeometry(Part.LineSegment(V(13.8925, -3.3093, 0), V(13.8925, -5.9046, 0)), False)
sketch5.addGeometry(Part.LineSegment(V(13.8925, -5.9046, 0), V(15.0442, -5.9046, 0)), False)
sketch5.addGeometry(Part.LineSegment(V(15.0442, -5.9046, 0), V(15.0442, -1.861, 0)), False)
sketch5.addGeometry(Part.LineSegment(V(15.0442, -1.861, 0), V(11.6185, -1.861, 0)), False)
sketch5.addGeometry(Part.LineSegment(V(11.6185, -1.861, 0), V(11.6185, -1.9944, 0)), False)
sketch5.addGeometry(Part.BSplineCurve([V(11.7866, -3.2006, 0), V(11.7866, -2.8644, 0), V(11.6779, -2.2268, 0), V(11.6185, -1.9944, 0)], [3, 1, 3], [0, 1, 2], False, 2, [1, 1, 1, 1], False), False)
sketch5.addGeometry(Part.BSplineCurve([V(11.5691, -4.214, 0), V(11.7075, -4.0063, 0), V(11.7866, -3.4132, 0), V(11.7866, -3.2006, 0)], [3, 1, 3], [0, 1, 2], False, 2, [1, 1, 1, 1], False), False)
sketch5.addGeometry(Part.BSplineCurve([V(10.9512, -4.5353, 0), V(11.1687, -4.5353, 0), V(11.4752, -4.3573, 0), V(11.5691, -4.214, 0)], [3, 1, 3], [0, 1, 2], False, 2, [1, 1, 1, 1], False), False)
sketch5.addGeometry(Part.BSplineCurve([V(10.274, -4.2733, 0), V(10.3976, -4.3969, 0), V(10.6991, -4.5353, 0), V(10.9512, -4.5353, 0)], [3, 1, 3], [0, 1, 2], False, 2, [1, 1, 1, 1], False), False)
sketch5.addGeometry(Part.BSplineCurve([V(9.9972, -3.3143, 0), V(9.9972, -3.5516, 0), V(10.1158, -4.1052, 0), V(10.274, -4.2733, 0)], [3, 1, 3], [0, 1, 2], False, 2, [1, 1, 1, 1], False), False)
sketch5.addGeometry(Part.BSplineCurve([V(10.1949, -2.3751, 0), V(10.1108, -2.5926, 0), V(9.9972, -3.0424, 0), V(9.9972, -3.3143, 0)], [3, 1, 3], [0, 1, 2], False, 2, [1, 1, 1, 1], False), False)
sketch5.addGeometry(Part.BSplineCurve([V(10.5162, -1.7374, 0), V(10.4519, -1.856, 0), V(10.2839, -2.1427, 0), V(10.1949, -2.3751, 0)], [3, 1, 3], [0, 1, 2], False, 2, [1, 1, 1, 1], False), False)
sketch5.addGeometry(Part.LineSegment(V(10.5162, -1.7374, 0), V(10.5162, -1.599, 0)), False)
sketch5.addGeometry(Part.LineSegment(V(10.5162, -1.599, 0), V(9.1865, -1.599, 0)), False)
sketch5.addGeometry(Part.BSplineCurve([V(8.8157, -3.5812, 0), V(8.8207, -2.899, 0), V(9.0431, -1.9203, 0), V(9.1865, -1.599, 0)], [3, 1, 3], [0, 1, 2], False, 2, [1, 1, 1, 1], False), False)
sketch5.addGeometry(Part.BSplineCurve([V(9.4287, -5.4251, 0), V(9.137, -5.1038, 0), V(8.8157, -4.2238, 0), V(8.8157, -3.5812, 0)], [3, 1, 3], [0, 1, 2], False, 2, [1, 1, 1, 1], False), False)
sketch5.addGeometry(Part.BSplineCurve([V(11.9942, -11.4756, 0), V(11.2033, -11.4756, 0), V(10.0169, -11.2235, 0), V(9.6165, -10.9418, 0)], [3, 1, 3], [0, 1, 2], False, 2, [1, 1, 1, 1], False), False)
sketch5.addGeometry(Part.BSplineCurve([V(14.3423, -10.9467, 0), V(13.9419, -11.2235, 0), V(12.7604, -11.4756, 0), V(11.9942, -11.4756, 0)], [3, 1, 3], [0, 1, 2], False, 2, [1, 1, 1, 1], False), False)
sketch5.addGeometry(Part.BSplineCurve([V(15.1678, -9.1276, 0), V(15.1678, -9.785, 0), V(14.7526, -10.6649, 0), V(14.3423, -10.9467, 0)], [3, 1, 3], [0, 1, 2], False, 2, [1, 1, 1, 1], False), False)
sketch5.addGeometry(Part.BSplineCurve([V(14.367, -7.3134, 0), V(14.7724, -7.6001, 0), V(15.1678, -8.5047, 0), V(15.1678, -9.1276, 0)], [3, 1, 3], [0, 1, 2], False, 2, [1, 1, 1, 1], False), False)
sketch5.addGeometry(Part.BSplineCurve([V(11.9942, -6.7746, 0), V(12.8049, -6.7746, 0), V(13.9518, -7.0267, 0), V(14.367, -7.3134, 0)], [3, 1, 3], [0, 1, 2], False, 2, [1, 1, 1, 1], False), False)
sketch5.addGeometry(Part.BSplineCurve([V(9.6264, -7.3085, 0), V(10.0268, -7.0267, 0), V(11.2033, -6.7746, 0), V(11.9942, -6.7746, 0)], [3, 1, 3], [0, 1, 2], False, 2, [1, 1, 1, 1], False), False)
sketch5.addGeometry(Part.BSplineCurve([V(8.8157, -9.1276, 0), V(8.8157, -8.48, 0), V(9.2211, -7.5902, 0), V(9.6264, -7.3085, 0)], [3, 1, 3], [0, 1, 2], False, 2, [1, 1, 1, 1], False), False)
sketch5.addGeometry(Part.BSplineCurve([V(9.6165, -10.9418, 0), V(9.2211, -10.6649, 0), V(8.8157, -9.7702, 0), V(8.8157, -9.1276, 0)], [3, 1, 3], [0, 1, 2], False, 2, [1, 1, 1, 1], False), False)
sketch5.addGeometry(Part.BSplineCurve([V(11.9942, -9.9383, 0), V(13.1262, -9.9383, 0), V(14.0407, -9.5675, 0), V(14.0407, -9.1276, 0)], [3, 1, 3], [0, 1, 2], False, 2, [1, 1, 1, 1], False), False)
sketch5.addGeometry(Part.BSplineCurve([V(9.9428, -9.1276, 0), V(9.9428, -9.5626, 0), V(10.8721, -9.9383, 0), V(11.9942, -9.9383, 0)], [3, 1, 3], [0, 1, 2], False, 2, [1, 1, 1, 1], False), False)
sketch5.addGeometry(Part.BSplineCurve([V(11.9893, -8.3119, 0), V(10.8721, -8.3119, 0), V(9.9428, -8.6876, 0), V(9.9428, -9.1276, 0)], [3, 1, 3], [0, 1, 2], False, 2, [1, 1, 1, 1], False), False)
sketch5.addGeometry(Part.BSplineCurve([V(14.0407, -9.1276, 0), V(14.0407, -8.6876, 0), V(13.1262, -8.3119, 0), V(11.9893, -8.3119, 0)], [3, 1, 3], [0, 1, 2], False, 2, [1, 1, 1, 1], False), False)
sketch5.addConstraint([
    Sketcher.Constraint("Block", 0),
    Sketcher.Constraint("Block", 1),
    Sketcher.Constraint("Block", 2),
    Sketcher.Constraint("Block", 4),
    Sketcher.Constraint("Block", 5),
    Sketcher.Constraint("Block", 6),
    Sketcher.Constraint("Block", 7),
    Sketcher.Constraint("Block", 10),
    Sketcher.Constraint("Block", 11),
    Sketcher.Constraint("Block", 12),
    Sketcher.Constraint("Block", 13),
    Sketcher.Constraint("Block", 14),
    Sketcher.Constraint("Block", 15),
    Sketcher.Constraint("Block", 19),
    Sketcher.Constraint("Block", 20),
    Sketcher.Constraint("Block", 21),
    Sketcher.Constraint("Block", 22),
    Sketcher.Constraint("Block", 23),
    Sketcher.Constraint("Block", 26),
    Sketcher.Constraint("Block", 27),
    Sketcher.Constraint("Block", 28),
    Sketcher.Constraint("Block", 29),
    Sketcher.Constraint("Block", 30),
    Sketcher.Constraint("Block", 31),
    Sketcher.Constraint("Block", 32),
    Sketcher.Constraint("Block", 33),
    Sketcher.Constraint("Block", 34),
    Sketcher.Constraint("Block", 35),
    Sketcher.Constraint("Block", 36),
    Sketcher.Constraint("Block", 37),
    Sketcher.Constraint("Block", 38),
    Sketcher.Constraint("Block", 39),
    Sketcher.Constraint("Block", 44),
    Sketcher.Constraint("Block", 45),
    Sketcher.Constraint("Block", 46),
    Sketcher.Constraint("Block", 47),
    Sketcher.Constraint("Block", 54),
    Sketcher.Constraint("Block", 55),
    Sketcher.Constraint("Block", 56),
    Sketcher.Constraint("Block", 57),
    Sketcher.Constraint("Block", 58),
    Sketcher.Constraint("Block", 59),
    Sketcher.Constraint("Block", 60),
    Sketcher.Constraint("Block", 63),
    Sketcher.Constraint("Block", 64),
    Sketcher.Constraint("Block", 65),
    Sketcher.Constraint("Block", 66),
    Sketcher.Constraint("Block", 67),
    Sketcher.Constraint("Block", 68),
    Sketcher.Constraint("Block", 69),
    Sketcher.Constraint("Block", 70),
    Sketcher.Constraint("Block", 71),
    Sketcher.Constraint("Block", 72),
    Sketcher.Constraint("Block", 73),
    Sketcher.Constraint("Block", 74),
    Sketcher.Constraint("Block", 75),
    Sketcher.Constraint("Block", 76),
    Sketcher.Constraint("Coincident", 2, 1, 3, 1),
    Sketcher.Constraint("Coincident", 3, 2, 4, 2),
    Sketcher.Constraint("Coincident", 7, 1, 8, 1),
    Sketcher.Constraint("Coincident", 8, 2, 9, 1),
    Sketcher.Constraint("Coincident", 9, 2, 10, 2),
    Sketcher.Constraint("Coincident", 15, 1, 16, 1),
    Sketcher.Constraint("Coincident", 16, 2, 17, 1),
    Sketcher.Constraint("Coincident", 17, 2, 18, 1),
    Sketcher.Constraint("Coincident", 18, 2, 19, 2),
    Sketcher.Constraint("Coincident", 23, 1, 24, 1),
    Sketcher.Constraint("Coincident", 24, 2, 25, 1),
    Sketcher.Constraint("Coincident", 25, 2, 26, 2),
    Sketcher.Constraint("Coincident", 47, 1, 48, 1),
    Sketcher.Constraint("Coincident", 48, 2, 49, 1),
    Sketcher.Constraint("Coincident", 49, 2, 50, 1),
    Sketcher.Constraint("Coincident", 50, 2, 51, 1),
    Sketcher.Constraint("Coincident", 51, 2, 52, 1),
    Sketcher.Constraint("Coincident", 52, 2, 53, 1),
    Sketcher.Constraint("Coincident", 53, 2, 54, 2),
    Sketcher.Constraint("Coincident", 60, 1, 61, 1),
    Sketcher.Constraint("Coincident", 61, 2, 62, 1),
    Sketcher.Constraint("Coincident", 62, 2, 63, 2),
    Sketcher.Constraint("Horizontal", 8),
    Sketcher.Constraint("Vertical", 9),
    Sketcher.Constraint("Vertical", 16),
    Sketcher.Constraint("Horizontal", 17),
    Sketcher.Constraint("Vertical", 18),
    Sketcher.Constraint("Vertical", 24),
    Sketcher.Constraint("Horizontal", 25),
    Sketcher.Constraint("Vertical", 40),
    Sketcher.Constraint("Horizontal", 41),
    Sketcher.Constraint("Vertical", 42),
    Sketcher.Constraint("Horizontal", 43),
    Sketcher.Constraint("Horizontal", 48),
    Sketcher.Constraint("Vertical", 49),
    Sketcher.Constraint("Horizontal", 50),
    Sketcher.Constraint("Vertical", 51),
    Sketcher.Constraint("Horizontal", 52),
    Sketcher.Constraint("Vertical", 53),
    Sketcher.Constraint("Vertical", 61),
    Sketcher.Constraint("Horizontal", 62),
    Sketcher.Constraint("DistanceX", 40, 2, 50, 2, 6.1),
    Sketcher.Constraint("DistanceY", 18, 2, 18, 1, 0.262),
    Sketcher.Constraint("DistanceX", 41, 1, 41, 2, 1.6115),
    Sketcher.Constraint("DistanceX", 48, 1, 48, 2, 1.0134),
    Sketcher.Constraint("DistanceX", 50, 1, 50, 2, 1.1517),
    Sketcher.Constraint("DistanceY", 40, 2, 40, 1, 1.4483),
    Sketcher.Constraint("DistanceY", 49, 2, 49, 1, 2.5953),
    Sketcher.Constraint("DistanceY", 51, 1, 51, 2, 4.0436),
    Sketcher.Constraint("DistanceY", -1, 1, 42, 2, 0.927),
])
pocket3 = body.newObject("PartDesign::Pocket", "Pocket002")
pocket3.Profile = sketch5
pocket3.setExpression("Length", "Params.pocket3_length")

doc.recompute()
